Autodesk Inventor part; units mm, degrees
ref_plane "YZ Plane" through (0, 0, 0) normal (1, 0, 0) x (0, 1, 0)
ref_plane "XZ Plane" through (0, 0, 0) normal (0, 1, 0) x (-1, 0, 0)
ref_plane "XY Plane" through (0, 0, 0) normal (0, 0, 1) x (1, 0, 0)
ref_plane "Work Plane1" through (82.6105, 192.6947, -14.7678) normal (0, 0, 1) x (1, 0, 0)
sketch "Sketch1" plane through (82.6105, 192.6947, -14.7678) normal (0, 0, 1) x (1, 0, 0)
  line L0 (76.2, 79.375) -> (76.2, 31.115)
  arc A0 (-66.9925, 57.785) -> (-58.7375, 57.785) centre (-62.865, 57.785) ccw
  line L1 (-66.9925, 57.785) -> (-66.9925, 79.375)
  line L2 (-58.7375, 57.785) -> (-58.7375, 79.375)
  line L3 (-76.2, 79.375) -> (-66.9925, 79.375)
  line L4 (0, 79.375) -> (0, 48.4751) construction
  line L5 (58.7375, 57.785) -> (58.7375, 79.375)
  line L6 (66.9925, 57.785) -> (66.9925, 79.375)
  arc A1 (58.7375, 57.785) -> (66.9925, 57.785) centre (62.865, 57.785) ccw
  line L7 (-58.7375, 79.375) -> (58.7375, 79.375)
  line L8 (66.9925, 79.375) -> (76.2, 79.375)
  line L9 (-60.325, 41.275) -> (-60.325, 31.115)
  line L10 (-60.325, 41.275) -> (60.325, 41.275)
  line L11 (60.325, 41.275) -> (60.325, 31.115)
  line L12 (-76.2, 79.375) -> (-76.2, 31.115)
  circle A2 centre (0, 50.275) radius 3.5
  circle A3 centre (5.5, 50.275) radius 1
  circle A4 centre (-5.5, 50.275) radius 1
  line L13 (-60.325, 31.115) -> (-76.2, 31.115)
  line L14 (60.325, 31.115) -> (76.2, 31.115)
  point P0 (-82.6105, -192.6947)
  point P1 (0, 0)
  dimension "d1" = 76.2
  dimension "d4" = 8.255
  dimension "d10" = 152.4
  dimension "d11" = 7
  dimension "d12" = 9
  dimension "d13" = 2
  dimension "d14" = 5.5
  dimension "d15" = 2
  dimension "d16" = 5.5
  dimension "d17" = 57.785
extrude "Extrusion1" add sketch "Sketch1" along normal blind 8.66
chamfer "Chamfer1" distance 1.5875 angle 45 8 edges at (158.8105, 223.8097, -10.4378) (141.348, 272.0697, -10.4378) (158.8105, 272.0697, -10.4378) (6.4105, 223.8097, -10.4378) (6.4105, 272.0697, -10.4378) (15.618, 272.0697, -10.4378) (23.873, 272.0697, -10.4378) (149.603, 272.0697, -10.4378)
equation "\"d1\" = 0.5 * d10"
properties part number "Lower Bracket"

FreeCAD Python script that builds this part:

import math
import FreeCAD as App
import Part
import Sketcher
Q = App.Units.Quantity


def edges_at(feature, points):
    """Names of the edges that pass closest to the given points."""
    edges = feature.Shape.Edges
    near = lambda p: min(range(len(edges)), key=lambda i: edges[i].distToShape(Part.Vertex(*p))[0])
    return sorted({f"Edge{near(p) + 1}" for p in points})

doc = App.newDocument("Part")
params = doc.addObject("Spreadsheet::Sheet", "Params")
for row, (alias, value) in enumerate([
    ("sketch1_height", "1.9 in"),
    ("sketch1_height2", "0.4 in"),
    ("sketch1_width", "4.75 in"),
    ("sketch1_height3", "0.85 in"),
    ("sketch1_width2", "0.625 in"),
    ("pad1_length", "8.66 mm"),
    ("chamfer_size", "0.0625 in"),
], start=1):
    params.set(f"A{row}", alias)
    params.set(f"B{row}", "=" + value)
    params.setAlias(f"B{row}", alias)

body = doc.addObject("PartDesign::Body", "Body")

sketch1 = body.newObject("Sketcher::SketchObject", "Sketch")
sketch1.AttachmentSupport = (doc.getObject("XY_Plane"), [""])
sketch1.MapMode = "FlatFace"
sketch1.AttachmentOffset = App.Placement(App.Vector(0, 0, -0.5814094 * 25.4), App.Rotation())
sketch1.addGeometry([
    Part.LineSegment(App.Vector(158.8, 223.8, 0), App.Vector(158.8, 272.1, 0)),
    Part.LineSegment(App.Vector(158.8, 272.1, 0), App.Vector(149.6, 272.1, 0)),
    Part.LineSegment(App.Vector(149.6, 272.1, 0), App.Vector(149.6, 250.5, 0)),
    Part.ArcOfCircle(Part.Circle(App.Vector(145.5, 250.5, 0), App.Vector(0, 0, 1), 4.1), math.radians(180), math.radians(360)),
    Part.LineSegment(App.Vector(141.3, 250.5, 0), App.Vector(141.3, 272.1, 0)),
    Part.LineSegment(App.Vector(141.3, 272.1, 0), App.Vector(23.9, 272.1, 0)),
    Part.LineSegment(App.Vector(23.9, 272.1, 0), App.Vector(23.9, 250.5, 0)),
    Part.ArcOfCircle(Part.Circle(App.Vector(19.7, 250.5, 0), App.Vector(0, 0, 1), 4.1), math.radians(180), math.radians(360)),
    Part.LineSegment(App.Vector(15.6, 250.5, 0), App.Vector(15.6, 272.1, 0)),
    Part.LineSegment(App.Vector(15.6, 272.1, 0), App.Vector(6.4, 272.1, 0)),
    Part.LineSegment(App.Vector(6.4, 272.1, 0), App.Vector(6.4, 223.8, 0)),
    Part.LineSegment(App.Vector(6.4, 223.8, 0), App.Vector(22.3, 223.8, 0)),
    Part.LineSegment(App.Vector(22.3, 223.8, 0), App.Vector(22.3, 234, 0)),
    Part.LineSegment(App.Vector(22.3, 234, 0), App.Vector(142.9, 234, 0)),
    Part.LineSegment(App.Vector(142.9, 234, 0), App.Vector(142.9, 223.8, 0)),
    Part.LineSegment(App.Vector(142.9, 223.8, 0), App.Vector(158.8, 223.8, 0)),
    Part.Circle(App.Vector(77.1, 243, 0), App.Vector(0, 0, 1), 1),
    Part.Circle(App.Vector(82.6, 243, 0), App.Vector(0, 0, 1), 3.5),
    Part.Circle(App.Vector(88.1, 243, 0), App.Vector(0, 0, 1), 1),
], False)
sketch1.addConstraint([
    Sketcher.Constraint("Coincident", 0, 2, 1, 1),
    Sketcher.Constraint("Coincident", 1, 2, 2, 1),
    Sketcher.Constraint("Tangent", 2, 2, 3, 2),
    Sketcher.Constraint("Tangent", 3, 1, 4, 1),
    Sketcher.Constraint("Coincident", 4, 2, 5, 1),
    Sketcher.Constraint("Coincident", 5, 2, 6, 1),
    Sketcher.Constraint("Tangent", 6, 2, 7, 2),
    Sketcher.Constraint("Tangent", 7, 1, 8, 1),
    Sketcher.Constraint("Coincident", 8, 2, 9, 1),
    Sketcher.Constraint("Coincident", 9, 2, 10, 1),
    Sketcher.Constraint("Coincident", 10, 2, 11, 1),
    Sketcher.Constraint("Coincident", 11, 2, 12, 1),
    Sketcher.Constraint("Coincident", 12, 2, 13, 1),
    Sketcher.Constraint("Coincident", 13, 2, 14, 1),
    Sketcher.Constraint("Coincident", 14, 2, 15, 1),
    Sketcher.Constraint("Coincident", 15, 2, 0, 1),
    Sketcher.Constraint("Vertical", 0),
    Sketcher.Constraint("Horizontal", 1),
    Sketcher.Constraint("Vertical", 2),
    Sketcher.Constraint("Vertical", 4),
    Sketcher.Constraint("Horizontal", 5),
    Sketcher.Constraint("Vertical", 6),
    Sketcher.Constraint("Vertical", 8),
    Sketcher.Constraint("Horizontal", 9),
    Sketcher.Constraint("Vertical", 10),
    Sketcher.Constraint("Horizontal", 11),
    Sketcher.Constraint("Vertical", 12),
    Sketcher.Constraint("Horizontal", 13),
    Sketcher.Constraint("Vertical", 14),
    Sketcher.Constraint("Horizontal", 15),
    Sketcher.Constraint("Equal", 3, 7),
    Sketcher.Constraint("Equal", 16, 18),
    Sketcher.Constraint("Horizontal", 3, 3, 7, 3),
    Sketcher.Constraint("Horizontal", 16, 3, 17, 3),
    Sketcher.Constraint("Horizontal", 17, 3, 18, 3),
    Sketcher.Constraint("Horizontal", 1, 2, 4, 2),
    Sketcher.Constraint("Horizontal", 5, 2, 8, 2),
    Sketcher.Constraint("Horizontal", 11, 2, 14, 2),
    Sketcher.Constraint("Equal", 1, 9),
    Sketcher.Constraint("Equal", 11, 15),
    Sketcher.Constraint("DistanceX", 17, 3, 0, 2, Q("3 in")),
    Sketcher.Constraint("Diameter", 17, Q("0.2756 in")),
    Sketcher.Constraint("Radius", 3, Q("0.1625 in")),
    Sketcher.Constraint("Diameter", 16, 2.0),
    Sketcher.Constraint("DistanceY", 0, 1, 0, 2, Q("1.9 in")),
    Sketcher.Constraint("DistanceY", 12, 1, 12, 2, Q("0.4 in")),
    Sketcher.Constraint("DistanceX", 13, 1, 13, 2, Q("4.75 in")),
    Sketcher.Constraint("DistanceY", 2, 2, 2, 1, Q("0.85 in")),
    Sketcher.Constraint("DistanceX", 7, 3, 11, 2, Q("0.1 in")),
    Sketcher.Constraint("DistanceX", 11, 1, 11, 2, Q("0.625 in")),
    Sketcher.Constraint("DistanceX", 16, 3, 17, 3, 5.5),
    Sketcher.Constraint("DistanceX", 17, 3, 18, 3, 5.5),
    Sketcher.Constraint("DistanceY", -1, 1, 3, 3, Q("9.8614 in")),
    Sketcher.Constraint("DistanceX", -1, 1, 3, 3, 145.4755),
    Sketcher.Constraint("DistanceY", -1, 1, 16, 3, 242.9697),
])
sketch1.setExpression("Constraints[44]", "Params.sketch1_height")
sketch1.setExpression("Constraints[45]", "Params.sketch1_height2")
sketch1.setExpression("Constraints[46]", "Params.sketch1_width")
sketch1.setExpression("Constraints[47]", "Params.sketch1_height3")
sketch1.setExpression("Constraints[49]", "Params.sketch1_width2")
pad1 = body.newObject("PartDesign::Pad", "Pad")
pad1.Profile = sketch1
pad1.setExpression("Length", "Params.pad1_length")
doc.recompute()

chamfer = body.newObject("PartDesign::Chamfer", "Chamfer")
chamfer.Base = (pad1, edges_at(pad1, [
    (158.81, 223.81, -10.438),
    (141.348, 272.07, -10.438),
    (158.81, 272.07, -10.438),
    (6.41, 223.81, -10.438),
    (6.41, 272.07, -10.438),
    (15.618, 272.07, -10.438),
    (23.873, 272.07, -10.438),
    (149.603, 272.07, -10.438),
]))
chamfer.setExpression("Size", "Params.chamfer_size")

doc.recompute()
